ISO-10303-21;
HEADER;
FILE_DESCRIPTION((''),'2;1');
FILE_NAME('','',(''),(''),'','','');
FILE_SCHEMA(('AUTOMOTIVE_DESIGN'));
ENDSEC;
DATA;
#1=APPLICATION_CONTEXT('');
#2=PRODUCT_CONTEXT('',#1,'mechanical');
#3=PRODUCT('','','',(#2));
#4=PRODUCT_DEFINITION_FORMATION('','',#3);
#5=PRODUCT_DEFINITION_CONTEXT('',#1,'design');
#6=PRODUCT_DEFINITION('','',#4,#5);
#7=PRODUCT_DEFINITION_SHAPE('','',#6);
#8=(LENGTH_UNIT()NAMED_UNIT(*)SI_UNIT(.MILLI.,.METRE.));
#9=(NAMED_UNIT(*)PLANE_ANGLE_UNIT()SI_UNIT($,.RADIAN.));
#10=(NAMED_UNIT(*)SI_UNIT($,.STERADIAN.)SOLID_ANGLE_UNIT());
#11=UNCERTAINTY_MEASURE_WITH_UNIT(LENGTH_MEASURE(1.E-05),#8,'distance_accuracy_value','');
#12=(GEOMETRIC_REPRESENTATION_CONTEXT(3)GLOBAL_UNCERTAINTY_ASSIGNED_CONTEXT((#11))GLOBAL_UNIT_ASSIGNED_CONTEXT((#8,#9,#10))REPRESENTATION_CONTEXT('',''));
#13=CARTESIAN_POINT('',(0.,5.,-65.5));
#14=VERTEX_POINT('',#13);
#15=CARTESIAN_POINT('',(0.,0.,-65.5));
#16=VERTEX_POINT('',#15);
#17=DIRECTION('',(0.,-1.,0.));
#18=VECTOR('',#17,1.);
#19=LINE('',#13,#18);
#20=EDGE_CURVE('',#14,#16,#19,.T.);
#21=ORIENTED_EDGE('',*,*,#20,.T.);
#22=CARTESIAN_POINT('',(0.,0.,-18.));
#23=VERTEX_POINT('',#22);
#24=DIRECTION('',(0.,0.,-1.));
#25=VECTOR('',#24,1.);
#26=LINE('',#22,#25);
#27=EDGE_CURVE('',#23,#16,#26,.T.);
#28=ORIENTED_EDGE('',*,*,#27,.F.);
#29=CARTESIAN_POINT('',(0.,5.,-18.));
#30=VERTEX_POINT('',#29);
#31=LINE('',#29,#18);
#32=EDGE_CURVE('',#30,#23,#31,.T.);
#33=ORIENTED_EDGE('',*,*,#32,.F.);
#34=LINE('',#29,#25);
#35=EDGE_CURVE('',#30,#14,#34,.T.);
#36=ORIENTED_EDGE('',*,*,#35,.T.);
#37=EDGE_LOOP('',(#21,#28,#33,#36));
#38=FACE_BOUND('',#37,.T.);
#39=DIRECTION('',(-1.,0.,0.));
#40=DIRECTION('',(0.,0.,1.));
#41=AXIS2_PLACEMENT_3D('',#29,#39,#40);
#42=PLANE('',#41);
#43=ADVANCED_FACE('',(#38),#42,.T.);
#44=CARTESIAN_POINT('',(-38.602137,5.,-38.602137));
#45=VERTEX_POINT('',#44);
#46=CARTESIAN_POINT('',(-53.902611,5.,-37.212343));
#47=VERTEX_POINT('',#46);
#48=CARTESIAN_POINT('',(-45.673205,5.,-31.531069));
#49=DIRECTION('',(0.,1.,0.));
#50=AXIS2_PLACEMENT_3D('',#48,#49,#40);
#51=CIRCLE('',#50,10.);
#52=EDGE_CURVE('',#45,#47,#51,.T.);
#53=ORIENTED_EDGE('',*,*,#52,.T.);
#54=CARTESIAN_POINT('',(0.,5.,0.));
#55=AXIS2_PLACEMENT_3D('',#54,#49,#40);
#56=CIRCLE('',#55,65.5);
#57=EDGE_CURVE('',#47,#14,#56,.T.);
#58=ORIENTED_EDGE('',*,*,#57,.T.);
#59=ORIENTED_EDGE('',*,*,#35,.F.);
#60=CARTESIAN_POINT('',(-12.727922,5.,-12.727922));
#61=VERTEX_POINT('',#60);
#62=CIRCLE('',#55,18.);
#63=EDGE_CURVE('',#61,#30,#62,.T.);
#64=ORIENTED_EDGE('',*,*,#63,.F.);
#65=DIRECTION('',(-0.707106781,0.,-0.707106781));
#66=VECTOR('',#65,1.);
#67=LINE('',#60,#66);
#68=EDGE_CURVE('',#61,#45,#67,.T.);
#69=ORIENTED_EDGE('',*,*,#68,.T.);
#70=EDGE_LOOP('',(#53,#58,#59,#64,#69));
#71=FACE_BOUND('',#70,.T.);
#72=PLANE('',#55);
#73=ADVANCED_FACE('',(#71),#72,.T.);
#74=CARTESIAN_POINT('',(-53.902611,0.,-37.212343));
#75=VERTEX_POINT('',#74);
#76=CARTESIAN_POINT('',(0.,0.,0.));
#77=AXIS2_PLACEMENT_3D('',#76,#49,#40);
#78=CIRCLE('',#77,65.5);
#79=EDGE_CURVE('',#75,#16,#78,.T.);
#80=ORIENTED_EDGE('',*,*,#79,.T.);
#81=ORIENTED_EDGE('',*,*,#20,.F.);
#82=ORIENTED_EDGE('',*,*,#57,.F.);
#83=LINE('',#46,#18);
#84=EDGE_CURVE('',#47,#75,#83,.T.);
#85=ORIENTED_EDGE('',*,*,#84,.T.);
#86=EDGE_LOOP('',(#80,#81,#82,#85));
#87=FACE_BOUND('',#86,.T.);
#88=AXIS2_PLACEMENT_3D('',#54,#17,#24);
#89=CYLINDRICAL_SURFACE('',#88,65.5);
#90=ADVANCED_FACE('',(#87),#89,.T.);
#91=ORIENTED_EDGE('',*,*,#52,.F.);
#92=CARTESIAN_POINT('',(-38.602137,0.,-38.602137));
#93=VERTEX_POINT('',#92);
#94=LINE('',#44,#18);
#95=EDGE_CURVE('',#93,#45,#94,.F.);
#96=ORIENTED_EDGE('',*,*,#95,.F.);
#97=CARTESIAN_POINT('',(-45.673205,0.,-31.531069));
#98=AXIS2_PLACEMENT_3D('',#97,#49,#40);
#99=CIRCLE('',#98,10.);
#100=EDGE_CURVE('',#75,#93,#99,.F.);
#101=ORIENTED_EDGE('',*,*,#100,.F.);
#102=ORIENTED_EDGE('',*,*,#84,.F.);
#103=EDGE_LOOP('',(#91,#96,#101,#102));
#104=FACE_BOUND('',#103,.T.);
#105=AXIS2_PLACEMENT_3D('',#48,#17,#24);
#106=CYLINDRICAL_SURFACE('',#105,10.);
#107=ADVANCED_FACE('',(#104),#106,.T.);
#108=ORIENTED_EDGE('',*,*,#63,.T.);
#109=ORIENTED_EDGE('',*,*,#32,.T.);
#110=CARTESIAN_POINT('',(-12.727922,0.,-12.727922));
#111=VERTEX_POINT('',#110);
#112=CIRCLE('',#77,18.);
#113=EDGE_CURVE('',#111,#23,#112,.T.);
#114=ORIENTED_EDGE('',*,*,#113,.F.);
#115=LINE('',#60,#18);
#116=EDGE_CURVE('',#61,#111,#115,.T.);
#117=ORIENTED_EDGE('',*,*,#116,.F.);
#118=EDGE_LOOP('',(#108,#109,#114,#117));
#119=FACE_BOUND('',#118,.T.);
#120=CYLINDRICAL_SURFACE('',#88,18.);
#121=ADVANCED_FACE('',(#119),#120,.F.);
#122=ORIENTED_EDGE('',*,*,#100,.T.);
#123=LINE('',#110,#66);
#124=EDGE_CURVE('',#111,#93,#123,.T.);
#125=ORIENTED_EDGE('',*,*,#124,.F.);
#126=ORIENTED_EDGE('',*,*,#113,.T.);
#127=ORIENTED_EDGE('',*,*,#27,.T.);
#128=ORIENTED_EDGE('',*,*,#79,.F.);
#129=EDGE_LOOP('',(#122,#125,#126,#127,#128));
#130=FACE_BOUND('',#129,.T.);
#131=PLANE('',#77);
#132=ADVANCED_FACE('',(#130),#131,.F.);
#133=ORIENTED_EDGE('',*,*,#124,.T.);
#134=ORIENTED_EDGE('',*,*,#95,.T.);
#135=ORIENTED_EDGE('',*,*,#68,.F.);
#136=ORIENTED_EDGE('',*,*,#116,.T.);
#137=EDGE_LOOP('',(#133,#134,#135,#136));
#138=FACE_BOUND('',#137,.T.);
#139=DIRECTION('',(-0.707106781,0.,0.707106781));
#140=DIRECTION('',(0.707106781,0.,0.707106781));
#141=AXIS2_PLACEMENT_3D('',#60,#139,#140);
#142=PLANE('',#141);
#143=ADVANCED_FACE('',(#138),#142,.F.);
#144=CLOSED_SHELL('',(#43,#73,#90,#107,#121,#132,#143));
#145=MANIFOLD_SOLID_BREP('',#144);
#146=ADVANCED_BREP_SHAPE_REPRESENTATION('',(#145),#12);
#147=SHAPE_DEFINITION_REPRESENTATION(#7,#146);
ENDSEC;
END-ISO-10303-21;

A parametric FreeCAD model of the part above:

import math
import FreeCAD as App
import Part
import Sketcher

V = App.Vector
Q = App.Units.Quantity


def edges_at(feature, points):
    """Names of the edges that pass closest to the given points."""
    edges = feature.Shape.Edges
    near = lambda p: min(range(len(edges)), key=lambda i: edges[i].distToShape(Part.Vertex(*p))[0])
    return sorted({f"Edge{near(p) + 1}" for p in points})

doc = App.newDocument("Part")
body = doc.addObject("PartDesign::Body", "Body")

sketch1 = doc.addObject("Sketcher::SketchObject", "Sketch")
body.addObject(sketch1)
sketch1.AttachmentSupport = (doc.XZ_Plane, [""])
sketch1.MapMode = "FlatFace"
sketch1.addGeometry([
    Part.LineSegment(V(-13, -13, 0), V(-46, -46, 0)),
    Part.ArcOfCircle(Part.Circle(V(0, 0, 0), V(0, 0, 1), 66), math.radians(-90), math.radians(225)),
    Part.LineSegment(V(0, -66, 0), V(0, -18, 0)),
    Part.ArcOfCircle(Part.Circle(V(0, 0, 0), V(0, 0, 1), 18), math.radians(-90), math.radians(225)),
], False)
sketch1.addConstraint([
    Sketcher.Constraint("Coincident", 0, 2, 1, 2),
    Sketcher.Constraint("Coincident", 1, 1, 2, 1),
    Sketcher.Constraint("Coincident", 2, 2, 3, 1),
    Sketcher.Constraint("Coincident", 3, 2, 0, 1),
    Sketcher.Constraint("Vertical", 2),
    Sketcher.Constraint("Coincident", 1, 3, -1, 1),
    Sketcher.Constraint("Coincident", 3, 3, -1, 1),
    Sketcher.Constraint("PointOnObject", 1, 1, -2),
    Sketcher.Constraint("Radius", 3, 18.0),
    Sketcher.Constraint("Radius", 1, 65.5),
    Sketcher.Constraint("Angle", 0, Q("-135 deg")),
    Sketcher.Constraint("DistanceX", 0, 2, -1, 1, 46.315494),
])
pad1 = doc.addObject("PartDesign::Pad", "Pad")
body.addObject(pad1)
pad1.Profile = sketch1
pad1.Length = 5
pad1.Reversed = True
doc.recompute()

fillet = doc.addObject("PartDesign::Fillet", "Fillet")
body.addObject(fillet)
fillet.Base = (pad1, edges_at(pad1, [(-46.315, 2.5, -46.315)]))
fillet.Radius = 10

doc.recompute()
